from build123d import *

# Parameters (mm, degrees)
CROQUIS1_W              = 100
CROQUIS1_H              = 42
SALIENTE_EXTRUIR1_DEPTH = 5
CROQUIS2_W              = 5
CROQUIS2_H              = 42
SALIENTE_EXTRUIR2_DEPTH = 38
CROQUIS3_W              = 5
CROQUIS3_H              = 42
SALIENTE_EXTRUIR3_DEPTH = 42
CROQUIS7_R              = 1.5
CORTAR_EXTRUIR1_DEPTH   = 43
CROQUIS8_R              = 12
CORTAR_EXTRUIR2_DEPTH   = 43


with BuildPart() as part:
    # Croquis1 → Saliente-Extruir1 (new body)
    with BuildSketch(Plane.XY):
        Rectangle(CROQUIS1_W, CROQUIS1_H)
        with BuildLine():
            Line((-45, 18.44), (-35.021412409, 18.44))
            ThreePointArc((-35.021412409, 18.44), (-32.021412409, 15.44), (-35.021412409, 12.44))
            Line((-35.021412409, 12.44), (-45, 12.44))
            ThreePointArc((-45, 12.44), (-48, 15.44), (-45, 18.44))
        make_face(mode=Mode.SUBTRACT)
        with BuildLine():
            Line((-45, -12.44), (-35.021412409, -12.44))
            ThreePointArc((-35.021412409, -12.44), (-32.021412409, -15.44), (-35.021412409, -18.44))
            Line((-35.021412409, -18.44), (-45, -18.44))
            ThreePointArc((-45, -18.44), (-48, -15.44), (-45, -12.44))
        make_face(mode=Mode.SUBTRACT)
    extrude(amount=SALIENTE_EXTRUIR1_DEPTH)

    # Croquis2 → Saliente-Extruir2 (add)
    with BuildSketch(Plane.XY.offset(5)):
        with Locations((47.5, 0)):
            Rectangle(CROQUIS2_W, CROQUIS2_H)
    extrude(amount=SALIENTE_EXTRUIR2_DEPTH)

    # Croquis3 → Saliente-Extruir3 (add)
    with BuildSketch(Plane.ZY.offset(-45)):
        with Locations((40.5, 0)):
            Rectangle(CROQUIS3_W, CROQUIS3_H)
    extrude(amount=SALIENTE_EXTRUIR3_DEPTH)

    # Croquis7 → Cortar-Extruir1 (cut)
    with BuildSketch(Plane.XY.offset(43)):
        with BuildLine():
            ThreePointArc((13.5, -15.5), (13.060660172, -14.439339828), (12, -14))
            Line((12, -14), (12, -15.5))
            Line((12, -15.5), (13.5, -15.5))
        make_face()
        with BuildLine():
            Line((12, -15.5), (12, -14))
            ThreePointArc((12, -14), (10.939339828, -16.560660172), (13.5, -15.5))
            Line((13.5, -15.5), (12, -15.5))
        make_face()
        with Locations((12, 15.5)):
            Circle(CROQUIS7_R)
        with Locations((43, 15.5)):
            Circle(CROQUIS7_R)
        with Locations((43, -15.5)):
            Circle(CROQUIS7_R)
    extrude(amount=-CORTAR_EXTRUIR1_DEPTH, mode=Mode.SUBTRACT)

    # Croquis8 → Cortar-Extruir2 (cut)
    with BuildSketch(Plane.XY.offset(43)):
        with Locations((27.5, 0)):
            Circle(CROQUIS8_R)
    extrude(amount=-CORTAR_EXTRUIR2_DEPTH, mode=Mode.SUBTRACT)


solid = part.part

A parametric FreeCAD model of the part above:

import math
import FreeCAD as App
import Part
import Sketcher


def add_polygon(sketch, points):
    """Adds a closed chain of lines whose ends are joined by coincident constraints."""
    first, n = sketch.GeometryCount, len(points)
    for a, b in zip(points, points[1:] + points[:1]):
        sketch.addGeometry(Part.LineSegment(App.Vector(*a, 0), App.Vector(*b, 0)), False)
    for i in range(n):
        sketch.addConstraint(Sketcher.Constraint("Coincident", first + i, 2, first + (i + 1) % n, 1))

doc = App.newDocument("Part")
body = doc.addObject("PartDesign::Body", "Body")

sketch1 = body.newObject("Sketcher::SketchObject", "Sketch")
sketch1.AttachmentSupport = (doc.getObject("XY_Plane"), [""])
sketch1.MapMode = "FlatFace"
add_polygon(sketch1, [(-50, 21), (-50, -21), (50, -21), (50, 21)])
sketch1.addGeometry(Part.ArcOfCircle(Part.Circle(App.Vector(-45, -15.4, 0), App.Vector(0, 0, 1), 3), math.radians(90), math.radians(270)), False)
sketch1.addGeometry(Part.LineSegment(App.Vector(-45, -12.4, 0), App.Vector(-35, -12.4, 0)), False)
sketch1.addGeometry(Part.ArcOfCircle(Part.Circle(App.Vector(-35, -15.4, 0), App.Vector(0, 0, 1), 3), math.radians(-90), math.radians(90)), False)
sketch1.addGeometry(Part.LineSegment(App.Vector(-35, -18.4, 0), App.Vector(-45, -18.4, 0)), False)
sketch1.addGeometry(Part.ArcOfCircle(Part.Circle(App.Vector(-45, 15.4, 0), App.Vector(0, 0, 1), 3), math.radians(90), math.radians(270)), False)
sketch1.addGeometry(Part.LineSegment(App.Vector(-45, 18.4, 0), App.Vector(-35, 18.4, 0)), False)
sketch1.addGeometry(Part.ArcOfCircle(Part.Circle(App.Vector(-35, 15.4, 0), App.Vector(0, 0, 1), 3), math.radians(-90), math.radians(90)), False)
sketch1.addGeometry(Part.LineSegment(App.Vector(-35, 12.4, 0), App.Vector(-45, 12.4, 0)), False)
sketch1.addConstraint(Sketcher.Constraint("Tangent", 4, 1, 5, 1))
sketch1.addConstraint(Sketcher.Constraint("Tangent", 5, 2, 6, 2))
sketch1.addConstraint(Sketcher.Constraint("Tangent", 6, 1, 7, 1))
sketch1.addConstraint(Sketcher.Constraint("Tangent", 7, 2, 4, 2))
sketch1.addConstraint(Sketcher.Constraint("Tangent", 8, 1, 9, 1))
sketch1.addConstraint(Sketcher.Constraint("Tangent", 9, 2, 10, 2))
sketch1.addConstraint(Sketcher.Constraint("Tangent", 10, 1, 11, 1))
sketch1.addConstraint(Sketcher.Constraint("Tangent", 11, 2, 8, 2))
sketch1.addConstraint(Sketcher.Constraint("Vertical", 0))
sketch1.addConstraint(Sketcher.Constraint("Horizontal", 1))
sketch1.addConstraint(Sketcher.Constraint("Vertical", 2))
sketch1.addConstraint(Sketcher.Constraint("Horizontal", 3))
sketch1.addConstraint(Sketcher.Constraint("Horizontal", 5))
sketch1.addConstraint(Sketcher.Constraint("Horizontal", 7))
sketch1.addConstraint(Sketcher.Constraint("Horizontal", 9))
sketch1.addConstraint(Sketcher.Constraint("Horizontal", 11))
sketch1.addConstraint(Sketcher.Constraint("Equal", 6, 8))
sketch1.addConstraint(Sketcher.Constraint("Symmetric", 0, 2, 2, 2, -1, 1))
sketch1.addConstraint(Sketcher.Constraint("Symmetric", 4, 3, 8, 3, -1))
sketch1.addConstraint(Sketcher.Constraint("Vertical", 6, 3, 10, 3))
sketch1.addConstraint(Sketcher.Constraint("Radius", 4, 3.0))
sketch1.addConstraint(Sketcher.Constraint("DistanceX", 1, 1, 1, 2, 100.0))
sketch1.addConstraint(Sketcher.Constraint("DistanceY", 0, 2, 0, 1, 42.0))
sketch1.addConstraint(Sketcher.Constraint("DistanceX", 4, 3, -1, 1, 45.0))
sketch1.addConstraint(Sketcher.Constraint("DistanceY", 4, 3, -1, 1, 15.44))
sketch1.addConstraint(Sketcher.Constraint("DistanceX", 5, 1, 5, 2, 9.978588))
pad1 = body.newObject("PartDesign::Pad", "Pad")
pad1.Profile = sketch1
pad1.Length = 5

sketch2 = body.newObject("Sketcher::SketchObject", "Sketch001")
sketch2.AttachmentSupport = (doc.getObject("XY_Plane"), [""])
sketch2.MapMode = "FlatFace"
sketch2.AttachmentOffset = App.Placement(App.Vector(0, 0, 5), App.Rotation())
add_polygon(sketch2, [(45, 21), (45, -21), (50, -21), (50, 21)])
sketch2.addConstraint(Sketcher.Constraint("Vertical", 0))
sketch2.addConstraint(Sketcher.Constraint("Horizontal", 1))
sketch2.addConstraint(Sketcher.Constraint("Vertical", 2))
sketch2.addConstraint(Sketcher.Constraint("Horizontal", 3))
sketch2.addConstraint(Sketcher.Constraint("DistanceX", 1, 1, 1, 2, 5.0))
sketch2.addConstraint(Sketcher.Constraint("DistanceY", 0, 2, 0, 1, 42.0))
sketch2.addConstraint(Sketcher.Constraint("DistanceX", -1, 1, 0, 2, 45.0))
sketch2.addConstraint(Sketcher.Constraint("DistanceY", 0, 2, -1, 1, 21.0))
pad2 = body.newObject("PartDesign::Pad", "Pad001")
pad2.Profile = sketch2
pad2.Length = 38

sketch3 = body.newObject("Sketcher::SketchObject", "Sketch002")
sketch3.AttachmentSupport = (doc.getObject("YZ_Plane"), [""])
sketch3.MapMode = "FlatFace"
sketch3.AttachmentOffset = App.Placement(App.Vector(0, 0, 45), App.Rotation())
add_polygon(sketch3, [(21, 38), (-21, 38), (-21, 43), (21, 43)])
sketch3.addConstraint(Sketcher.Constraint("Horizontal", 0))
sketch3.addConstraint(Sketcher.Constraint("Vertical", 1))
sketch3.addConstraint(Sketcher.Constraint("Horizontal", 2))
sketch3.addConstraint(Sketcher.Constraint("Vertical", 3))
sketch3.addConstraint(Sketcher.Constraint("DistanceX", 0, 2, 0, 1, 42.0))
sketch3.addConstraint(Sketcher.Constraint("DistanceY", 1, 1, 1, 2, 5.0))
sketch3.addConstraint(Sketcher.Constraint("DistanceX", 0, 2, -1, 1, 21.0))
sketch3.addConstraint(Sketcher.Constraint("DistanceY", -1, 1, 0, 2, 38.0))
pad3 = body.newObject("PartDesign::Pad", "Pad002")
pad3.Profile = sketch3
pad3.Length = 42
pad3.Reversed = True

sketch4 = body.newObject("Sketcher::SketchObject", "Sketch003")
sketch4.AttachmentSupport = (doc.getObject("XY_Plane"), [""])
sketch4.MapMode = "FlatFace"
sketch4.AttachmentOffset = App.Placement(App.Vector(0, 0, 43), App.Rotation())
sketch4.addGeometry(Part.ArcOfCircle(Part.Circle(App.Vector(12, -15.5, 0), App.Vector(0, 0, 1), 1.5), math.radians(0), math.radians(90)), False)
sketch4.addGeometry(Part.ArcOfCircle(Part.Circle(App.Vector(12, -15.5, 0), App.Vector(0, 0, 1), 1.5), math.radians(90), math.radians(360)), False)
sketch4.addGeometry(Part.Circle(App.Vector(12, 15.5, 0), App.Vector(0, 0, 1), 1.5), False)
sketch4.addGeometry(Part.Circle(App.Vector(43, 15.5, 0), App.Vector(0, 0, 1), 1.5), False)
sketch4.addGeometry(Part.Circle(App.Vector(43, -15.5, 0), App.Vector(0, 0, 1), 1.5), False)
sketch4.addConstraint(Sketcher.Constraint("Tangent", 0, 1, 1, 2))
sketch4.addConstraint(Sketcher.Constraint("Coincident", 1, 1, 0, 2))
sketch4.addConstraint(Sketcher.Constraint("Equal", 1, 2))
sketch4.addConstraint(Sketcher.Constraint("Equal", 2, 3))
sketch4.addConstraint(Sketcher.Constraint("Equal", 3, 4))
sketch4.addConstraint(Sketcher.Constraint("Symmetric", 0, 3, 2, 3, -1))
sketch4.addConstraint(Sketcher.Constraint("Symmetric", 3, 3, 4, 3, -1))
sketch4.addConstraint(Sketcher.Constraint("Horizontal", 2, 3, 3, 3))
sketch4.addConstraint(Sketcher.Constraint("Horizontal", 4, 3, 0, 1))
sketch4.addConstraint(Sketcher.Constraint("Vertical", 2, 3, 1, 1))
sketch4.addConstraint(Sketcher.Constraint("Diameter", 2, 3.0))
sketch4.addConstraint(Sketcher.Constraint("DistanceX", -1, 1, 0, 3, 12.0))
sketch4.addConstraint(Sketcher.Constraint("DistanceX", -1, 1, 3, 3, 43.0))
sketch4.addConstraint(Sketcher.Constraint("DistanceY", 1, 1, -1, 1, 14.0))
pocket1 = body.newObject("PartDesign::Pocket", "Pocket")
pocket1.Profile = sketch4
pocket1.Length = 43

sketch5 = body.newObject("Sketcher::SketchObject", "Sketch004")
sketch5.AttachmentSupport = (doc.getObject("XY_Plane"), [""])
sketch5.MapMode = "FlatFace"
sketch5.AttachmentOffset = App.Placement(App.Vector(0, 0, 43), App.Rotation())
sketch5.addGeometry(Part.Circle(App.Vector(28, 0, 0), App.Vector(0, 0, 1), 12), False)
sketch5.addConstraint(Sketcher.Constraint("PointOnObject", 0, 3, -1))
sketch5.addConstraint(Sketcher.Constraint("Diameter", 0, 24.0))
sketch5.addConstraint(Sketcher.Constraint("DistanceX", -1, 1, 0, 3, 27.5))
pocket2 = body.newObject("PartDesign::Pocket", "Pocket001")
pocket2.Profile = sketch5
pocket2.Length = 43

doc.recompute()
